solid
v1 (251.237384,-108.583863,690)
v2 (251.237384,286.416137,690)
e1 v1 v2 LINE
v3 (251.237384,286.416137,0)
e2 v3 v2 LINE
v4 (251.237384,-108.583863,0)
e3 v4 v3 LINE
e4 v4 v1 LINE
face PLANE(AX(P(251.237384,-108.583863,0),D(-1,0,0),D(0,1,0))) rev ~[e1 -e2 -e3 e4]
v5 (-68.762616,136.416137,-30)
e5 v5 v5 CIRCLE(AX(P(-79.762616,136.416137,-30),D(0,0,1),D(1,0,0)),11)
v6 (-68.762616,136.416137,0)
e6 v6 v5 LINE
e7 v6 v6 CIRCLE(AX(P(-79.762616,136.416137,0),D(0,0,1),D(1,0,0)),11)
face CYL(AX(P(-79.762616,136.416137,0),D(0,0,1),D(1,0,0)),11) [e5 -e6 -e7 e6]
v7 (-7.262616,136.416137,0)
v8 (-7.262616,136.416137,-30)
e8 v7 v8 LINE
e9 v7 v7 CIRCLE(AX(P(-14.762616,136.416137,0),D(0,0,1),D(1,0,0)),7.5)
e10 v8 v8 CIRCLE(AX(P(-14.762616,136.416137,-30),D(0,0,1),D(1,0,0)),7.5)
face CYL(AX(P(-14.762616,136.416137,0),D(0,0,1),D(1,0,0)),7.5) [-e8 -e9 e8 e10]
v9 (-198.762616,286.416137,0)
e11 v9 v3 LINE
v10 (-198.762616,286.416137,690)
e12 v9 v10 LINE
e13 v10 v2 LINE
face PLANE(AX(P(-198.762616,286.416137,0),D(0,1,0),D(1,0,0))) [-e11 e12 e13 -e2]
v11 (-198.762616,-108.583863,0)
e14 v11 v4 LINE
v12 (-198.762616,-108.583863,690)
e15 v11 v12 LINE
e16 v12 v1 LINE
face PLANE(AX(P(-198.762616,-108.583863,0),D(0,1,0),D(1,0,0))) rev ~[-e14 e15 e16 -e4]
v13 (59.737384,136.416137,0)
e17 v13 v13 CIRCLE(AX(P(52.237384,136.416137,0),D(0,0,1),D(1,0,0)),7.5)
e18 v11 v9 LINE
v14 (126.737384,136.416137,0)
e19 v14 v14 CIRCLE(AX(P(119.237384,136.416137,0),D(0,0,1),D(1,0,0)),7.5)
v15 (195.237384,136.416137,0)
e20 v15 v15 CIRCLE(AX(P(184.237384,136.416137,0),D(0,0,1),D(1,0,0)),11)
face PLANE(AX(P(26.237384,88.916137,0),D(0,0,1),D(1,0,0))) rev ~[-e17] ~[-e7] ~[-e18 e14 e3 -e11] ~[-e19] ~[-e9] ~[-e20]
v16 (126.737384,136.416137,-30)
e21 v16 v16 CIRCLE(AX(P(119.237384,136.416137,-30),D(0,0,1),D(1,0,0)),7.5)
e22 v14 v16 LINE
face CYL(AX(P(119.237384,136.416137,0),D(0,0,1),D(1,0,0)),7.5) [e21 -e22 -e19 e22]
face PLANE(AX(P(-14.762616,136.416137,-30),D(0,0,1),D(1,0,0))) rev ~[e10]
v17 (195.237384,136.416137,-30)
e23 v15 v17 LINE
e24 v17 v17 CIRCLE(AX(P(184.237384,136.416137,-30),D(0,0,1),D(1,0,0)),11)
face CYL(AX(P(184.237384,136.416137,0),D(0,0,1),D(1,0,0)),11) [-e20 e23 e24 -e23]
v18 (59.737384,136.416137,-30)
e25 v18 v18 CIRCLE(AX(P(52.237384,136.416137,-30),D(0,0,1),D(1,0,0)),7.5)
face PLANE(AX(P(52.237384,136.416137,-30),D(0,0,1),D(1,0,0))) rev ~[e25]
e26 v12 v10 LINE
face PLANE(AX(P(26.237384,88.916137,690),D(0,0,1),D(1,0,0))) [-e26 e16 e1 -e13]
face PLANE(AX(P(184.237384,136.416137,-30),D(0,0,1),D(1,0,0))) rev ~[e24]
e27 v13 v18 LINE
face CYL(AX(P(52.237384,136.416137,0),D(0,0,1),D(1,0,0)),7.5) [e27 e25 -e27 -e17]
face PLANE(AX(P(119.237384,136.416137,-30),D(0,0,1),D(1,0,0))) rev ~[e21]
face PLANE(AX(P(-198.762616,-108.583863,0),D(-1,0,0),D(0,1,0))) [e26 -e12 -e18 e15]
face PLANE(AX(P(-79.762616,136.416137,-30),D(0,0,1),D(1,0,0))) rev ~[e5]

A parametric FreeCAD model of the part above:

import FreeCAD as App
import Part
import Sketcher
from FreeCAD import Vector
Q = App.Units.Quantity

doc = App.newDocument("Part")
params = doc.addObject("Spreadsheet::Sheet", "Params")
for row, (alias, value) in enumerate([
    ("sketch1_width", "450 mm"),
    ("sketch1_height", "395 mm"),
    ("pad1_length", "690 mm"),
    ("sketch2_diameter", "22 mm"),
    ("sketch2_diameter2", "15 mm"),
    ("pad2_length", "30 mm"),
], start=1):
    params.set(f"A{row}", alias)
    params.set(f"B{row}", "=" + value)
    params.setAlias(f"B{row}", alias)

body = doc.addObject("PartDesign::Body", "Body")

sketch1 = doc.addObject("Sketcher::SketchObject", "Sketch")
body.addObject(sketch1)
sketch1.AttachmentSupport = (doc.XY_Plane, [""])
sketch1.MapMode = "FlatFace"
sketch1.addGeometry([
    Part.LineSegment(Vector(-198.762616, 286.416137, 0), Vector(-198.762616, -108.583863, 0)),
    Part.LineSegment(Vector(-198.762616, -108.583863, 0), Vector(251.237384, -108.583863, 0)),
    Part.LineSegment(Vector(251.237384, -108.583863, 0), Vector(251.237384, 286.416137, 0)),
    Part.LineSegment(Vector(251.237384, 286.416137, 0), Vector(-198.762616, 286.416137, 0)),
], False)
sketch1.addConstraint([
    Sketcher.Constraint("Coincident", 0, 2, 1, 1),
    Sketcher.Constraint("Coincident", 1, 2, 2, 1),
    Sketcher.Constraint("Coincident", 2, 2, 3, 1),
    Sketcher.Constraint("Coincident", 3, 2, 0, 1),
    Sketcher.Constraint("Vertical", 0),
    Sketcher.Constraint("Horizontal", 1),
    Sketcher.Constraint("Vertical", 2),
    Sketcher.Constraint("Horizontal", 3),
    Sketcher.Constraint("DistanceX", 1, 1, 1, 2, Q("450 mm")),
    Sketcher.Constraint("DistanceY", 0, 2, 0, 1, Q("395 mm")),
    Sketcher.Constraint("DistanceX", 0, 2, -1, 1, Q("198.762616 mm")),
    Sketcher.Constraint("DistanceY", 0, 2, -1, 1, Q("108.583863 mm")),
])
sketch1.setExpression("Constraints[8]", "Params.sketch1_width")
sketch1.setExpression("Constraints[9]", "Params.sketch1_height")
pad1 = doc.addObject("PartDesign::Pad", "Pad")
body.addObject(pad1)
pad1.Profile = sketch1
pad1.setExpression("Length", "Params.pad1_length")

sketch2 = doc.addObject("Sketcher::SketchObject", "Sketch001")
body.addObject(sketch2)
sketch2.AttachmentSupport = (doc.XY_Plane, [""])
sketch2.MapMode = "FlatFace"
sketch2.addGeometry([
    Part.Circle(Vector(184.237384, 136.416137, 0), Vector(0, 0, 1), 11),
    Part.Circle(Vector(119.237384, 136.416137, 0), Vector(0, 0, 1), 7.5),
    Part.Circle(Vector(52.237384, 136.416137, 0), Vector(0, 0, 1), 7.5),
    Part.Circle(Vector(-14.762616, 136.416137, 0), Vector(0, 0, 1), 7.5),
    Part.Circle(Vector(-79.762616, 136.416137, 0), Vector(0, 0, 1), 11),
], False)
sketch2.addConstraint([
    Sketcher.Constraint("Equal", 1, 2),
    Sketcher.Constraint("Equal", 2, 3),
    Sketcher.Constraint("Equal", 0, 4),
    Sketcher.Constraint("Horizontal", 0, 3, 1, 3),
    Sketcher.Constraint("Horizontal", 1, 3, 2, 3),
    Sketcher.Constraint("Horizontal", 2, 3, 3, 3),
    Sketcher.Constraint("Horizontal", 3, 3, 4, 3),
    Sketcher.Constraint("Diameter", 0, Q("22 mm")),
    Sketcher.Constraint("Diameter", 1, Q("15 mm")),
    Sketcher.Constraint("DistanceX", 1, 3, 0, 3, Q("65 mm")),
    Sketcher.Constraint("DistanceX", 2, 3, 1, 3, Q("67 mm")),
    Sketcher.Constraint("DistanceX", 3, 3, 2, 3, Q("67 mm")),
    Sketcher.Constraint("DistanceX", 4, 3, 3, 3, Q("65 mm")),
    Sketcher.Constraint("DistanceX", -1, 1, 0, 3, Q("184.237384 mm")),
    Sketcher.Constraint("DistanceY", -1, 1, 0, 3, Q("136.416137 mm")),
])
sketch2.setExpression("Constraints[7]", "Params.sketch2_diameter")
sketch2.setExpression("Constraints[8]", "Params.sketch2_diameter2")
pad2 = doc.addObject("PartDesign::Pad", "Pad001")
body.addObject(pad2)
pad2.Profile = sketch2
pad2.setExpression("Length", "Params.pad2_length")
pad2.Reversed = True

doc.recompute()
